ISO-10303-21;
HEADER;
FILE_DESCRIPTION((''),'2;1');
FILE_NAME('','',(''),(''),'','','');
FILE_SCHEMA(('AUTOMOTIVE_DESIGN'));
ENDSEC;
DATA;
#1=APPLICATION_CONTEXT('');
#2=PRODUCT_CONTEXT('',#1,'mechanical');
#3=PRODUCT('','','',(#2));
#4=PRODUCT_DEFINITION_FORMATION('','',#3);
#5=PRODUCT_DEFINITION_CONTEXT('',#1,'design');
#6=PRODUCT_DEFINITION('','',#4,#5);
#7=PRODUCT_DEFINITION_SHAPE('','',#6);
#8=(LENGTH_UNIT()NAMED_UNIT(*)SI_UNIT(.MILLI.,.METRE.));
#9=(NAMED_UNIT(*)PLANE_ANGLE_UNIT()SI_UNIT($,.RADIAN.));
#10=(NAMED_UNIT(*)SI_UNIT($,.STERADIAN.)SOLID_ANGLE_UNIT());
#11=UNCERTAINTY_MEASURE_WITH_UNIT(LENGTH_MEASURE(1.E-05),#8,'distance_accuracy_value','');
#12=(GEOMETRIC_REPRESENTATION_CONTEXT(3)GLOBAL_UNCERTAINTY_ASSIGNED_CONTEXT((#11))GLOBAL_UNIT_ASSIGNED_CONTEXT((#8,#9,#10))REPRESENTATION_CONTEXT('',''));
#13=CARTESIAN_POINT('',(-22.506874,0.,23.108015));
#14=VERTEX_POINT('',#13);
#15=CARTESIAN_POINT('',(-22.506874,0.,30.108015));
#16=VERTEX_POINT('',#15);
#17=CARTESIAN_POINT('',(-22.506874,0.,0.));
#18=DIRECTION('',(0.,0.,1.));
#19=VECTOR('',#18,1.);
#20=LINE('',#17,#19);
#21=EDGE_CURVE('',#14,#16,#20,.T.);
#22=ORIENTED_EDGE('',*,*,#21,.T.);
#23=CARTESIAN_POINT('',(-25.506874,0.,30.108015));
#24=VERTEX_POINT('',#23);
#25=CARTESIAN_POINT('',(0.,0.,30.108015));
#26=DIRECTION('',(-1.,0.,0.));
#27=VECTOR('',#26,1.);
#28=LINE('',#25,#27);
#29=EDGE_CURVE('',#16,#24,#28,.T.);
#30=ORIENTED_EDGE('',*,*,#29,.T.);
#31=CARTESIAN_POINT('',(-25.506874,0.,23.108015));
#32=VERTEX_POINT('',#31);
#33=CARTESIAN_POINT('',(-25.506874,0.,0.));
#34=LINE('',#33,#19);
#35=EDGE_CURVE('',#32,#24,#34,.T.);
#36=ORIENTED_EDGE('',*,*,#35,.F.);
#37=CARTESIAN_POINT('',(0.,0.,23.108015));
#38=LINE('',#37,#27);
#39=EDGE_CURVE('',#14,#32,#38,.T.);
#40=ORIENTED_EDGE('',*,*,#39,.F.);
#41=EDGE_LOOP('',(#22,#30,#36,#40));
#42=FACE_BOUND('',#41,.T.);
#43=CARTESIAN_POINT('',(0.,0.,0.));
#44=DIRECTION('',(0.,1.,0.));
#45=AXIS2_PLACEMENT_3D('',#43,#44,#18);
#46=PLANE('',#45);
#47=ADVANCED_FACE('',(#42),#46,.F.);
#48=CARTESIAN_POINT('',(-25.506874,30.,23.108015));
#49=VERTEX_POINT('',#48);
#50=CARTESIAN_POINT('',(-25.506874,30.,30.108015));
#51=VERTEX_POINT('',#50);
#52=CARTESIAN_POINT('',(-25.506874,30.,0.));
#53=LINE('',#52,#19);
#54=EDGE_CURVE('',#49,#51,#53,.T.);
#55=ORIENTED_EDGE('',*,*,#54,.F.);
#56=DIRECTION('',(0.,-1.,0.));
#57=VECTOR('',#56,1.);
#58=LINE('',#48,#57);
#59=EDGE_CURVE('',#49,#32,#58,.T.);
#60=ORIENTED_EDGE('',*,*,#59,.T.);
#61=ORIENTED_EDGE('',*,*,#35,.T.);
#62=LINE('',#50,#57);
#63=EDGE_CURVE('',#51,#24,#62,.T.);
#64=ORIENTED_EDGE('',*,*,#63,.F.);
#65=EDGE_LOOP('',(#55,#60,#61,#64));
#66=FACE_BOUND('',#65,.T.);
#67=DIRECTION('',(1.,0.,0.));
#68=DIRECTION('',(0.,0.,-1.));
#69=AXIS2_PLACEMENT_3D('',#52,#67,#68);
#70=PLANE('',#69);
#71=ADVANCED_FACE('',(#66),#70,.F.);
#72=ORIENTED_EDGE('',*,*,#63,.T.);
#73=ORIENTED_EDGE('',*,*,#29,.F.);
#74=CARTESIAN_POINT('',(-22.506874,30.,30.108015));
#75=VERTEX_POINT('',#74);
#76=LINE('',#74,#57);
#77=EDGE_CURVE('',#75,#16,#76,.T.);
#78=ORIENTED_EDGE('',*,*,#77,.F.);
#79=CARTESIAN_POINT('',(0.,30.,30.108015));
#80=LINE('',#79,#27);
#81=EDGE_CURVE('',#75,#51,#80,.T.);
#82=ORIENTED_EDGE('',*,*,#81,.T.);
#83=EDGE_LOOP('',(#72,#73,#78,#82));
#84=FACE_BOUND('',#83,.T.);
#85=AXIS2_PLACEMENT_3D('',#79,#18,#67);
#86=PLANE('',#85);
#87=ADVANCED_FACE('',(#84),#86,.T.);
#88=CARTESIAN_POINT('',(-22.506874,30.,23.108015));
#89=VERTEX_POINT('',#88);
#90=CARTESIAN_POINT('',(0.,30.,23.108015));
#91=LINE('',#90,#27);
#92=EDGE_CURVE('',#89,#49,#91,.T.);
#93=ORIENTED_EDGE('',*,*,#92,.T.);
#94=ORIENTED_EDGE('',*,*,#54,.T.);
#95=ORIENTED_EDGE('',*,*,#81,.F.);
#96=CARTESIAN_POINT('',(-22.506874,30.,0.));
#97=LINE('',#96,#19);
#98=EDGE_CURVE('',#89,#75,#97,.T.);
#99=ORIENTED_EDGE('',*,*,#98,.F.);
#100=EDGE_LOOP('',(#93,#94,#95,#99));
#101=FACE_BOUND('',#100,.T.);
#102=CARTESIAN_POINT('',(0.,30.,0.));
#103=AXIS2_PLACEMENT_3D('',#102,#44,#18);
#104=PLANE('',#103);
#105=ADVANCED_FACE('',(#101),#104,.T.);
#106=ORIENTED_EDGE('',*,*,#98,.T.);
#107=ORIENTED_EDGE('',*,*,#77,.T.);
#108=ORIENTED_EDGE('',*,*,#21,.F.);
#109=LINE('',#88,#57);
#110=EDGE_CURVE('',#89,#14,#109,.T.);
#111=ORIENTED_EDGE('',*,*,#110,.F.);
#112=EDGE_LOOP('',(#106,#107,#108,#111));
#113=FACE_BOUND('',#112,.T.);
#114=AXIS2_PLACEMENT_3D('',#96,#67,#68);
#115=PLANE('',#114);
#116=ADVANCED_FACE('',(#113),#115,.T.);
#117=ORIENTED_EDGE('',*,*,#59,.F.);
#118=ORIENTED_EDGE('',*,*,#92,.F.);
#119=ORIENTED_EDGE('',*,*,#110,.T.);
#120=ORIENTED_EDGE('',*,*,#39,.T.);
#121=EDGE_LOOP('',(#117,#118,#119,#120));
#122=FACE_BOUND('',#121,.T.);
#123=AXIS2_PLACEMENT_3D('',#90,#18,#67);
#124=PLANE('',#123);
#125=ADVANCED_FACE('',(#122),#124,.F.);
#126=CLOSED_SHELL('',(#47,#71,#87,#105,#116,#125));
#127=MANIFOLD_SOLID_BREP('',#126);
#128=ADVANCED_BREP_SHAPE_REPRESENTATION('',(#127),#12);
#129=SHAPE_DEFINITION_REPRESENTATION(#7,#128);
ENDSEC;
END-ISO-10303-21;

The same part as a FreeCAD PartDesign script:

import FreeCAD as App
import Part
import Sketcher

doc = App.newDocument("Part")
body = doc.addObject("PartDesign::Body", "Body")

# Sketch on XZ plane
sketch1 = doc.addObject("Sketcher::SketchObject", "Sketch")
body.addObject(sketch1)
sketch1.AttachmentSupport = (doc.XZ_Plane, [""])
sketch1.MapMode = "FlatFace"
sketch1.addGeometry([
    Part.LineSegment(App.Vector(-25.5, 23.1, 0), App.Vector(-25.5, 30.1, 0)),
    Part.LineSegment(App.Vector(-25.5, 30.1, 0), App.Vector(-22.5, 30.1, 0)),
    Part.LineSegment(App.Vector(-22.5, 30.1, 0), App.Vector(-22.5, 23.1, 0)),
    Part.LineSegment(App.Vector(-22.5, 23.1, 0), App.Vector(-25.5, 23.1, 0)),
], False)
sketch1.addConstraint([
    Sketcher.Constraint("Coincident", 0, 2, 1, 1),
    Sketcher.Constraint("Coincident", 1, 2, 2, 1),
    Sketcher.Constraint("Coincident", 2, 2, 3, 1),
    Sketcher.Constraint("Coincident", 3, 2, 0, 1),
    Sketcher.Constraint("Vertical", 0),
    Sketcher.Constraint("Horizontal", 1),
    Sketcher.Constraint("Vertical", 2),
    Sketcher.Constraint("Horizontal", 3),
    Sketcher.Constraint("DistanceX", 1, 1, 1, 2, 3.0),
    Sketcher.Constraint("DistanceY", 0, 1, 0, 2, 7.0),
    Sketcher.Constraint("DistanceX", 0, 2, -1, 1, 25.506874),
    Sketcher.Constraint("DistanceY", -1, 1, 0, 2, 30.108015),
])
pad1 = doc.addObject("PartDesign::Pad", "Pad")
body.addObject(pad1)
pad1.Profile = sketch1
pad1.Length = 30
pad1.Reversed = True

doc.recompute()
